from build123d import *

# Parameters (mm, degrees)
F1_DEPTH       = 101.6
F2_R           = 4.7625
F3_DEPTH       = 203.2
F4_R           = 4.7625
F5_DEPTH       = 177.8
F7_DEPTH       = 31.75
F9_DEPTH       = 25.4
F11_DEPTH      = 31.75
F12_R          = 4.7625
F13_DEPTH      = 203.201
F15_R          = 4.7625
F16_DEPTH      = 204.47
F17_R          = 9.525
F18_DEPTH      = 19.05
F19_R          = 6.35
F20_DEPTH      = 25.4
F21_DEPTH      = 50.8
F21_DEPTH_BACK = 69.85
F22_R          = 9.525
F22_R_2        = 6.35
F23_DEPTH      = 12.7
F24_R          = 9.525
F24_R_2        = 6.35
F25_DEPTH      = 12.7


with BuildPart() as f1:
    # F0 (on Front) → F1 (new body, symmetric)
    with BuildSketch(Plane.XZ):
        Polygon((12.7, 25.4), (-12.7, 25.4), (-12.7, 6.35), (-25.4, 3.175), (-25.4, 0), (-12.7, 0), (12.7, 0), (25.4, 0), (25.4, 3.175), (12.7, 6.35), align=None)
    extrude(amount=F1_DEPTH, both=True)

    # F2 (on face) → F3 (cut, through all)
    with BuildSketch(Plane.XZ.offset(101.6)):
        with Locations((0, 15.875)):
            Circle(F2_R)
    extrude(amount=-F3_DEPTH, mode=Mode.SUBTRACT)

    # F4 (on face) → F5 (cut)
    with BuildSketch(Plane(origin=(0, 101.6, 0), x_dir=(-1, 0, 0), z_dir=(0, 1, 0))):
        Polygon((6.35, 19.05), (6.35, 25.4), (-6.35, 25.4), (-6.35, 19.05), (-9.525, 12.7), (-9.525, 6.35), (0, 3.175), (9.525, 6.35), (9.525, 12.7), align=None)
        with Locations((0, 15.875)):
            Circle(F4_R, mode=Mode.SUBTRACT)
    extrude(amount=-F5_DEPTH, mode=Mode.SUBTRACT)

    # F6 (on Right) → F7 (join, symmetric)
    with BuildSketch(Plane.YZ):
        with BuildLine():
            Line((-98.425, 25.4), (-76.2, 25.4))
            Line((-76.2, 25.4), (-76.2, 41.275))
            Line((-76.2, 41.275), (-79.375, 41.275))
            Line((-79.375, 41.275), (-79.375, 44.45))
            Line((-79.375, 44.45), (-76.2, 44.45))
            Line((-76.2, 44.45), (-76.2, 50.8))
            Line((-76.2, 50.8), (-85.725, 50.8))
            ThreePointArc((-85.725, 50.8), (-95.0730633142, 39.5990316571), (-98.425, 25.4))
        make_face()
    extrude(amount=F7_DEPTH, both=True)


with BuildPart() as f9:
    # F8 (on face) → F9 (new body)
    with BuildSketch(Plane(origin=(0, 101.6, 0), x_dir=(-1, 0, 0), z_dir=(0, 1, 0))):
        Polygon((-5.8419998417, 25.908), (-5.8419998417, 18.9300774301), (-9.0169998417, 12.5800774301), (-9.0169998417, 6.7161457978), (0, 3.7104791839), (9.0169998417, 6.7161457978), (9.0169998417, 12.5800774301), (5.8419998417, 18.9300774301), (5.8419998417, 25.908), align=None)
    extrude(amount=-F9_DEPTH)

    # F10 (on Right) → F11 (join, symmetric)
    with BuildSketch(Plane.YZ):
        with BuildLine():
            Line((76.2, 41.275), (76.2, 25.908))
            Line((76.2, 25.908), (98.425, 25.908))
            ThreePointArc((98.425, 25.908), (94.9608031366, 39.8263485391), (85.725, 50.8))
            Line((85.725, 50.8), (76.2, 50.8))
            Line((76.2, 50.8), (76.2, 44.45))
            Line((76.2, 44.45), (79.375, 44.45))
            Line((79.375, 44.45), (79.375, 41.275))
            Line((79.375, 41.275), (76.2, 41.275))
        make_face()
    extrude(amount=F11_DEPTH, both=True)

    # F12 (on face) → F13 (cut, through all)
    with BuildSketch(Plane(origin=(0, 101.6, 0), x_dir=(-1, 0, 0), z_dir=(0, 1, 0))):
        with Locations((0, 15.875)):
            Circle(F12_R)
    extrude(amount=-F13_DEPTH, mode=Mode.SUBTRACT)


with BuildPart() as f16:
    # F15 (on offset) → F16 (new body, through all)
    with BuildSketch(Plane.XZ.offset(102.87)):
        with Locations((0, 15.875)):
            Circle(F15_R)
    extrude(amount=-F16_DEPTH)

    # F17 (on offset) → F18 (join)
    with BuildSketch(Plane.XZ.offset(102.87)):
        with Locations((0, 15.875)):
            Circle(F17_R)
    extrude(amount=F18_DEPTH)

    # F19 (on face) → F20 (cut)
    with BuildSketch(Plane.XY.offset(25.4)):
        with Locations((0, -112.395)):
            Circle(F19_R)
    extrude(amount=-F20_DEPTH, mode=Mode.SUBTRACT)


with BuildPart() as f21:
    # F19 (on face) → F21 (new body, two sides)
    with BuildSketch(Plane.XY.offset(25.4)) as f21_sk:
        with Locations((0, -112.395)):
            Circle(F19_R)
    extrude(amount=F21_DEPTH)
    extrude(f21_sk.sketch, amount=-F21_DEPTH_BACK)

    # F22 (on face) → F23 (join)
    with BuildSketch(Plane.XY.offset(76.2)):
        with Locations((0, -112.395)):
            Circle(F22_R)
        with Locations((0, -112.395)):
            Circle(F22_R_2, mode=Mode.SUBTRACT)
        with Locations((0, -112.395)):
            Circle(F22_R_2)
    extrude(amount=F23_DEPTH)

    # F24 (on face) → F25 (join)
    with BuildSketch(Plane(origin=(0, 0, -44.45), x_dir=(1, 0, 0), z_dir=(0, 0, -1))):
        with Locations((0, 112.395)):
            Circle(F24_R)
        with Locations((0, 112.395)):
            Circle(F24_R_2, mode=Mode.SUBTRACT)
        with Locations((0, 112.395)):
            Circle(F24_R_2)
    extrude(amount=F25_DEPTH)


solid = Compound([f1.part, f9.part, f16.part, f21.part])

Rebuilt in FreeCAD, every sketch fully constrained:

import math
import FreeCAD as App
import Part
import Sketcher

V = App.Vector
Q = App.Units.Quantity


def add_polygon(sketch, points):
    """Adds a closed chain of lines whose ends are joined by coincident constraints."""
    first, n = sketch.GeometryCount, len(points)
    for a, b in zip(points, points[1:] + points[:1]):
        sketch.addGeometry(Part.LineSegment(App.Vector(*a, 0), App.Vector(*b, 0)), False)
    for i in range(n):
        sketch.addConstraint(Sketcher.Constraint("Coincident", first + i, 2, first + (i + 1) % n, 1))

doc = App.newDocument("Part")
body = doc.addObject("PartDesign::Body", "Body")

# Sketch on XZ plane
sketch1 = body.newObject("Sketcher::SketchObject", "Sketch")
sketch1.AttachmentSupport = (doc.getObject("XZ_Plane"), [""])
sketch1.MapMode = "FlatFace"
add_polygon(sketch1, [(12.7, 25.4), (-12.7, 25.4), (-12.7, 6.3), (-25.4, 3.2), (-25.4, 0), (25.4, 0), (25.4, 3.2), (12.7, 6.3)])  # lines 0-7
sketch1.addConstraint([
    Sketcher.Constraint("Horizontal", 0),
    Sketcher.Constraint("Vertical", 1),
    Sketcher.Constraint("Vertical", 3),
    Sketcher.Constraint("Horizontal", 4),
    Sketcher.Constraint("Vertical", 5),
    Sketcher.Constraint("Vertical", 7),
    Sketcher.Constraint("Symmetric", 3, 2, 4, 2, -1, 1),
    Sketcher.Constraint("Symmetric", 1, 2, 6, 2, -2),
    Sketcher.Constraint("Horizontal", 2, 2, 5, 2),
    Sketcher.Constraint("DistanceX", 0, 2, 0, 1, Q("1 in")),
    Sketcher.Constraint("DistanceX", 4, 1, 4, 2, Q("2 in")),
    Sketcher.Constraint("DistanceY", -1, 1, 0, 2, Q("1 in")),
    Sketcher.Constraint("DistanceY", 1, 2, 1, 1, Q("0.75 in")),
    Sketcher.Constraint("DistanceY", 3, 2, 3, 1, Q("0.125 in")),
])
pad1 = body.newObject("PartDesign::Pad", "Pad")
pad1.Profile = sketch1
pad1.Length = Q("8 in")
pad1.Midplane = True

# Sketch on XZ plane
sketch2 = body.newObject("Sketcher::SketchObject", "Sketch001")
sketch2.AttachmentSupport = (doc.getObject("XZ_Plane"), [""])
sketch2.MapMode = "FlatFace"
sketch2.AttachmentOffset = App.Placement(V(0, 0, 4 * 25.4), App.Rotation())
sketch2.addGeometry(Part.Circle(V(0, 15.9, 0), V(0, 0, 1), 4.8), False)
sketch2.addConstraint([
    Sketcher.Constraint("PointOnObject", 0, 3, -2),
    Sketcher.Constraint("Diameter", 0, Q("0.375 in")),
    Sketcher.Constraint("DistanceY", -1, 1, 0, 3, Q("0.625 in")),
])
pocket1 = body.newObject("PartDesign::Pocket", "Pocket")
pocket1.Profile = sketch2
pocket1.Type = "ThroughAll"

# Sketch on XZ plane
sketch3 = body.newObject("Sketcher::SketchObject", "Sketch002")
sketch3.AttachmentSupport = (doc.getObject("XZ_Plane"), [""])
sketch3.MapMode = "FlatFace"
sketch3.AttachmentOffset = App.Placement(V(0, 0, -4 * 25.4), App.Rotation())
add_polygon(sketch3, [(-6.3, 19.1), (-6.3, 25.4), (6.3, 25.4), (6.3, 19.1), (9.5, 12.7), (9.5, 6.3), (0, 3.2), (-9.5, 6.3), (-9.5, 12.7)])  # lines 0-8
sketch3.addGeometry(Part.Circle(V(0, 15.9, 0), V(0, 0, 1), 4.8), False)  # 9
sketch3.addConstraint([
    Sketcher.Constraint("Vertical", 0),
    Sketcher.Constraint("Horizontal", 1),
    Sketcher.Constraint("Vertical", 2),
    Sketcher.Constraint("Vertical", 4),
    Sketcher.Constraint("Vertical", 7),
    Sketcher.Constraint("Symmetric", 4, 2, 6, 2, -2),
    Sketcher.Constraint("Symmetric", 2, 2, 8, 2, -2),
    Sketcher.Constraint("PointOnObject", 9, 3, -2),
    Sketcher.Constraint("PointOnObject", 5, 2, -2),
    Sketcher.Constraint("Horizontal", 3, 2, 7, 2),
    Sketcher.Constraint("Equal", 2, 4),
    Sketcher.Constraint("Diameter", 9, Q("0.375 in")),
    Sketcher.Constraint("DistanceX", 1, 1, 1, 2, Q("0.5 in")),
    Sketcher.Constraint("DistanceY", -1, 1, 0, 2, Q("1 in")),
    Sketcher.Constraint("DistanceY", 0, 1, 0, 2, Q("0.25 in")),
    Sketcher.Constraint("DistanceY", -1, 1, 3, 2, Q("0.5 in")),
    Sketcher.Constraint("DistanceY", 5, 2, 9, 3, Q("0.5 in")),
    Sketcher.Constraint("DistanceX", 6, 2, 4, 2, Q("0.75 in")),
    Sketcher.Constraint("DistanceY", -1, 1, 9, 3, Q("0.625 in")),
])
pocket2 = body.newObject("PartDesign::Pocket", "Pocket001")
pocket2.Profile = sketch3
pocket2.Length = Q("7 in")
pocket2.Reversed = True

# Sketch on YZ plane
sketch4 = body.newObject("Sketcher::SketchObject", "Sketch003")
sketch4.AttachmentSupport = (doc.getObject("YZ_Plane"), [""])
sketch4.MapMode = "FlatFace"
sketch4.addGeometry([
    Part.LineSegment(V(-98.4, 25.4, 0), V(-76.2, 25.4, 0)),  # 0
    Part.LineSegment(V(-76.2, 25.4, 0), V(-76.2, 41.3, 0)),  # 1
    Part.LineSegment(V(-76.2, 41.3, 0), V(-79.4, 41.3, 0)),  # 2
    Part.LineSegment(V(-79.4, 41.3, 0), V(-79.4, 44.5, 0)),  # 3
    Part.LineSegment(V(-79.4, 44.5, 0), V(-76.2, 44.5, 0)),  # 4
    Part.LineSegment(V(-76.2, 44.5, 0), V(-76.2, 50.8, 0)),  # 5
    Part.LineSegment(V(-76.2, 50.8, 0), V(-85.7, 50.8, 0)),  # 6
    Part.ArcOfCircle(Part.Circle(V(-66.7, 25.4, 0), V(0, 0, 1), 31.8), math.radians(127), math.radians(180)),  # 7
], False)
sketch4.addConstraint([
    Sketcher.Constraint("Coincident", 0, 2, 1, 1),
    Sketcher.Constraint("Coincident", 1, 2, 2, 1),
    Sketcher.Constraint("Coincident", 2, 2, 3, 1),
    Sketcher.Constraint("Coincident", 3, 2, 4, 1),
    Sketcher.Constraint("Coincident", 4, 2, 5, 1),
    Sketcher.Constraint("Coincident", 5, 2, 6, 1),
    Sketcher.Constraint("Coincident", 6, 2, 7, 1),
    Sketcher.Constraint("Coincident", 7, 2, 0, 1),
    Sketcher.Constraint("Horizontal", 0),
    Sketcher.Constraint("Vertical", 1),
    Sketcher.Constraint("Horizontal", 2),
    Sketcher.Constraint("Vertical", 3),
    Sketcher.Constraint("Horizontal", 4),
    Sketcher.Constraint("Vertical", 5),
    Sketcher.Constraint("Horizontal", 6),
    Sketcher.Constraint("Horizontal", 7, 3, 0, 2),
    Sketcher.Constraint("Vertical", 1, 2, 4, 2),
    Sketcher.Constraint("Equal", 4, 3),
    Sketcher.Constraint("Radius", 7, Q("1.25 in")),
    Sketcher.Constraint("DistanceY", -1, 1, 7, 3, Q("1 in")),
    Sketcher.Constraint("DistanceX", 0, 2, -1, 1, Q("3 in")),
    Sketcher.Constraint("DistanceY", -1, 1, 5, 2, Q("2 in")),
    Sketcher.Constraint("DistanceY", 5, 1, 5, 2, Q("0.25 in")),
    Sketcher.Constraint("DistanceX", 2, 2, 7, 3, Q("0.5 in")),
    Sketcher.Constraint("DistanceX", 0, 1, 0, 2, Q("0.875 in")),
])
pad2 = body.newObject("PartDesign::Pad", "Pad001")
pad2.Profile = sketch4
pad2.Length = Q("2.5 in")
pad2.Midplane = True
body2 = doc.addObject("PartDesign::Body", "Body001")

# Sketch on XZ plane
sketch5 = body2.newObject("Sketcher::SketchObject", "Sketch004")
sketch5.AttachmentSupport = (doc.getObject("XZ_Plane001"), [""])
sketch5.MapMode = "FlatFace"
sketch5.AttachmentOffset = App.Placement(V(0, 0, -4 * 25.4), App.Rotation())
add_polygon(sketch5, [(6, 26), (6, 19), (9, 13), (9, 7), (0, 4), (-9, 7), (-9, 13), (-6, 19), (-6, 26)])  # lines 0-8
sketch5.addConstraint([
    Sketcher.Constraint("Vertical", 0),
    Sketcher.Constraint("Vertical", 2),
    Sketcher.Constraint("Vertical", 5),
    Sketcher.Constraint("Vertical", 7),
    Sketcher.Constraint("Horizontal", 8),
    Sketcher.Constraint("Symmetric", 2, 2, 4, 2, -2),
    Sketcher.Constraint("Symmetric", 0, 2, 6, 2, -2),
    Sketcher.Constraint("PointOnObject", 3, 2, -2),
    Sketcher.Constraint("Horizontal", 1, 2, 5, 2),
    Sketcher.Constraint("DistanceX", 8, 1, 8, 2, Q("0.46 in")),
    Sketcher.Constraint("DistanceY", -1, 1, 7, 2, Q("1.02 in")),
    Sketcher.Constraint("DistanceY", 1, 2, 0, 2, Q("0.25 in")),
    Sketcher.Constraint("DistanceX", 4, 2, 2, 2, Q("0.71 in")),
    Sketcher.Constraint("DistanceY", 2, 2, 2, 1, Q("5.863932 mm")),
    Sketcher.Constraint("DistanceY", 3, 2, 1, 2, Q("8.869598 mm")),
    Sketcher.Constraint("DistanceY", 0, 2, 0, 1, Q("6.977923 mm")),
])
pad3 = body2.newObject("PartDesign::Pad", "Pad002")
pad3.Profile = sketch5
pad3.Length = Q("1 in")

# Sketch on YZ plane
sketch6 = body2.newObject("Sketcher::SketchObject", "Sketch005")
sketch6.AttachmentSupport = (doc.getObject("YZ_Plane001"), [""])
sketch6.MapMode = "FlatFace"
sketch6.addGeometry([
    Part.LineSegment(V(76.2, 41.3, 0), V(76.2, 25.9, 0)),  # 0
    Part.LineSegment(V(76.2, 25.9, 0), V(98.4, 25.9, 0)),  # 1
    Part.ArcOfCircle(Part.Circle(V(66.7, 25.4, 0), V(0, 0, 1), 31.7), math.radians(1), math.radians(53)),  # 2
    Part.LineSegment(V(85.7, 50.8, 0), V(76.2, 50.8, 0)),  # 3
    Part.LineSegment(V(76.2, 50.8, 0), V(76.2, 44.5, 0)),  # 4
    Part.LineSegment(V(76.2, 44.5, 0), V(79.4, 44.5, 0)),  # 5
    Part.LineSegment(V(79.4, 44.5, 0), V(79.4, 41.3, 0)),  # 6
    Part.LineSegment(V(79.4, 41.3, 0), V(76.2, 41.3, 0)),  # 7
], False)
sketch6.addConstraint([
    Sketcher.Constraint("Coincident", 0, 2, 1, 1),
    Sketcher.Constraint("Coincident", 1, 2, 2, 1),
    Sketcher.Constraint("Coincident", 2, 2, 3, 1),
    Sketcher.Constraint("Coincident", 3, 2, 4, 1),
    Sketcher.Constraint("Coincident", 4, 2, 5, 1),
    Sketcher.Constraint("Coincident", 5, 2, 6, 1),
    Sketcher.Constraint("Coincident", 6, 2, 7, 1),
    Sketcher.Constraint("Coincident", 7, 2, 0, 1),
    Sketcher.Constraint("Vertical", 0),
    Sketcher.Constraint("Horizontal", 1),
    Sketcher.Constraint("Horizontal", 3),
    Sketcher.Constraint("Vertical", 4),
    Sketcher.Constraint("Horizontal", 5),
    Sketcher.Constraint("Vertical", 6),
    Sketcher.Constraint("Horizontal", 7),
    Sketcher.Constraint("Vertical", 0, 2, 3, 2),
    Sketcher.Constraint("Equal", 7, 6),
    Sketcher.Constraint("Radius", 2, Q("1.25 in")),
    Sketcher.Constraint("DistanceX", -1, 1, 0, 2, Q("3 in")),
    Sketcher.Constraint("DistanceY", -1, 1, 2, 2, Q("2 in")),
    Sketcher.Constraint("DistanceY", 4, 2, 4, 1, Q("0.25 in")),
    Sketcher.Constraint("DistanceX", 2, 2, 1, 2, Q("0.5 in")),
    Sketcher.Constraint("DistanceX", 1, 1, 1, 2, Q("0.875 in")),
    Sketcher.Constraint("DistanceX", 5, 1, 5, 2, Q("0.125 in")),
    Sketcher.Constraint("DistanceY", 0, 2, 0, 1, Q("0.605 in")),
])
pad4 = body2.newObject("PartDesign::Pad", "Pad003")
pad4.Profile = sketch6
pad4.Length = Q("2.5 in")
pad4.Midplane = True

# Sketch on XZ plane
sketch7 = body2.newObject("Sketcher::SketchObject", "Sketch006")
sketch7.AttachmentSupport = (doc.getObject("XZ_Plane001"), [""])
sketch7.MapMode = "FlatFace"
sketch7.AttachmentOffset = App.Placement(V(0, 0, -4 * 25.4), App.Rotation())
sketch7.addGeometry(Part.Circle(V(0, 15.9, 0), V(0, 0, 1), 4.8), False)
sketch7.addConstraint([
    Sketcher.Constraint("PointOnObject", 0, 3, -2),
    Sketcher.Constraint("Diameter", 0, Q("0.375 in")),
    Sketcher.Constraint("DistanceY", -1, 1, 0, 3, Q("0.625 in")),
])
pocket3 = body2.newObject("PartDesign::Pocket", "Pocket002")
pocket3.Profile = sketch7
pocket3.Type = "ThroughAll"
pocket3.Reversed = True
body3 = doc.addObject("PartDesign::Body", "Body002")

# Sketch on XZ plane
sketch8 = body3.newObject("Sketcher::SketchObject", "Sketch007")
sketch8.AttachmentSupport = (doc.getObject("XZ_Plane002"), [""])
sketch8.MapMode = "FlatFace"
sketch8.AttachmentOffset = App.Placement(V(0, 0, 4.05 * 25.4), App.Rotation())
sketch8.addGeometry(Part.Circle(V(0, 15.9, 0), V(0, 0, 1), 4.8), False)
sketch8.addConstraint([
    Sketcher.Constraint("PointOnObject", 0, 3, -2),
    Sketcher.Constraint("Diameter", 0, Q("0.375 in")),
    Sketcher.Constraint("DistanceY", -1, 1, 0, 3, Q("0.625 in")),
])
pad5 = body3.newObject("PartDesign::Pad", "Pad004")
pad5.Profile = sketch8
pad5.Length = Q("8.05 in")
pad5.Reversed = True

# Sketch on XZ plane
sketch9 = body3.newObject("Sketcher::SketchObject", "Sketch008")
sketch9.AttachmentSupport = (doc.getObject("XZ_Plane002"), [""])
sketch9.MapMode = "FlatFace"
sketch9.AttachmentOffset = App.Placement(V(0, 0, 4.05 * 25.4), App.Rotation())
sketch9.addGeometry(Part.Circle(V(0, 16, 0), V(0, 0, 1), 10), False)
sketch9.addConstraint([
    Sketcher.Constraint("PointOnObject", 0, 3, -2),
    Sketcher.Constraint("Diameter", 0, Q("0.75 in")),
    Sketcher.Constraint("DistanceY", -1, 1, 0, 3, Q("0.625 in")),
])
pad6 = body3.newObject("PartDesign::Pad", "Pad005")
pad6.Profile = sketch9
pad6.Length = Q("0.75 in")

# Sketch on XY plane
sketch10 = body3.newObject("Sketcher::SketchObject", "Sketch009")
sketch10.AttachmentSupport = (doc.getObject("XY_Plane002"), [""])
sketch10.MapMode = "FlatFace"
sketch10.AttachmentOffset = App.Placement(V(0, 0, 1 * 25.4), App.Rotation())
sketch10.addGeometry(Part.Circle(V(0, -112, 0), V(0, 0, 1), 6), False)
sketch10.addConstraint([
    Sketcher.Constraint("PointOnObject", 0, 3, -2),
    Sketcher.Constraint("Diameter", 0, Q("0.5 in")),
    Sketcher.Constraint("DistanceY", 0, 3, -1, 1, Q("4.425 in")),
])
pocket4 = body3.newObject("PartDesign::Pocket", "Pocket003")
pocket4.Profile = sketch10
pocket4.Length = Q("1 in")
body4 = doc.addObject("PartDesign::Body", "Body003")

# Sketch on XY plane
sketch11 = body4.newObject("Sketcher::SketchObject", "Sketch010")
sketch11.AttachmentSupport = (doc.getObject("XY_Plane003"), [""])
sketch11.MapMode = "FlatFace"
sketch11.AttachmentOffset = App.Placement(V(0, 0, 1 * 25.4), App.Rotation())
sketch11.addGeometry(Part.Circle(V(0, -112, 0), V(0, 0, 1), 6), False)
sketch11.addConstraint([
    Sketcher.Constraint("PointOnObject", 0, 3, -2),
    Sketcher.Constraint("Diameter", 0, Q("0.5 in")),
    Sketcher.Constraint("DistanceY", 0, 3, -1, 1, Q("4.425 in")),
])
pad7 = body4.newObject("PartDesign::Pad", "Pad006")
pad7.Profile = sketch11
pad7.Type = "TwoLengths"
pad7.Length = Q("2 in")
pad7.Length2 = Q("2.75 in")

# Sketch on XY plane
sketch12 = body4.newObject("Sketcher::SketchObject", "Sketch011")
sketch12.AttachmentSupport = (doc.getObject("XY_Plane003"), [""])
sketch12.MapMode = "FlatFace"
sketch12.AttachmentOffset = App.Placement(V(0, 0, 3 * 25.4), App.Rotation())
sketch12.addGeometry(Part.Circle(V(0, -112, 0), V(0, 0, 1), 10), False)
sketch12.addConstraint([
    Sketcher.Constraint("PointOnObject", 0, 3, -2),
    Sketcher.Constraint("Diameter", 0, Q("0.75 in")),
    Sketcher.Constraint("DistanceY", 0, 3, -1, 1, Q("4.425 in")),
])
pad8 = body4.newObject("PartDesign::Pad", "Pad007")
pad8.Profile = sketch12
pad8.Length = Q("0.5 in")

# Sketch on XY plane
sketch13 = body4.newObject("Sketcher::SketchObject", "Sketch012")
sketch13.AttachmentSupport = (doc.getObject("XY_Plane003"), [""])
sketch13.MapMode = "FlatFace"
sketch13.AttachmentOffset = App.Placement(V(0, 0, -1.75 * 25.4), App.Rotation())
sketch13.addGeometry(Part.Circle(V(0, -112, 0), V(0, 0, 1), 10), False)
sketch13.addConstraint([
    Sketcher.Constraint("PointOnObject", 0, 3, -2),
    Sketcher.Constraint("Diameter", 0, Q("0.75 in")),
    Sketcher.Constraint("DistanceY", 0, 3, -1, 1, Q("4.425 in")),
])
pad9 = body4.newObject("PartDesign::Pad", "Pad008")
pad9.Profile = sketch13
pad9.Length = Q("0.5 in")
pad9.Reversed = True

doc.recompute()
